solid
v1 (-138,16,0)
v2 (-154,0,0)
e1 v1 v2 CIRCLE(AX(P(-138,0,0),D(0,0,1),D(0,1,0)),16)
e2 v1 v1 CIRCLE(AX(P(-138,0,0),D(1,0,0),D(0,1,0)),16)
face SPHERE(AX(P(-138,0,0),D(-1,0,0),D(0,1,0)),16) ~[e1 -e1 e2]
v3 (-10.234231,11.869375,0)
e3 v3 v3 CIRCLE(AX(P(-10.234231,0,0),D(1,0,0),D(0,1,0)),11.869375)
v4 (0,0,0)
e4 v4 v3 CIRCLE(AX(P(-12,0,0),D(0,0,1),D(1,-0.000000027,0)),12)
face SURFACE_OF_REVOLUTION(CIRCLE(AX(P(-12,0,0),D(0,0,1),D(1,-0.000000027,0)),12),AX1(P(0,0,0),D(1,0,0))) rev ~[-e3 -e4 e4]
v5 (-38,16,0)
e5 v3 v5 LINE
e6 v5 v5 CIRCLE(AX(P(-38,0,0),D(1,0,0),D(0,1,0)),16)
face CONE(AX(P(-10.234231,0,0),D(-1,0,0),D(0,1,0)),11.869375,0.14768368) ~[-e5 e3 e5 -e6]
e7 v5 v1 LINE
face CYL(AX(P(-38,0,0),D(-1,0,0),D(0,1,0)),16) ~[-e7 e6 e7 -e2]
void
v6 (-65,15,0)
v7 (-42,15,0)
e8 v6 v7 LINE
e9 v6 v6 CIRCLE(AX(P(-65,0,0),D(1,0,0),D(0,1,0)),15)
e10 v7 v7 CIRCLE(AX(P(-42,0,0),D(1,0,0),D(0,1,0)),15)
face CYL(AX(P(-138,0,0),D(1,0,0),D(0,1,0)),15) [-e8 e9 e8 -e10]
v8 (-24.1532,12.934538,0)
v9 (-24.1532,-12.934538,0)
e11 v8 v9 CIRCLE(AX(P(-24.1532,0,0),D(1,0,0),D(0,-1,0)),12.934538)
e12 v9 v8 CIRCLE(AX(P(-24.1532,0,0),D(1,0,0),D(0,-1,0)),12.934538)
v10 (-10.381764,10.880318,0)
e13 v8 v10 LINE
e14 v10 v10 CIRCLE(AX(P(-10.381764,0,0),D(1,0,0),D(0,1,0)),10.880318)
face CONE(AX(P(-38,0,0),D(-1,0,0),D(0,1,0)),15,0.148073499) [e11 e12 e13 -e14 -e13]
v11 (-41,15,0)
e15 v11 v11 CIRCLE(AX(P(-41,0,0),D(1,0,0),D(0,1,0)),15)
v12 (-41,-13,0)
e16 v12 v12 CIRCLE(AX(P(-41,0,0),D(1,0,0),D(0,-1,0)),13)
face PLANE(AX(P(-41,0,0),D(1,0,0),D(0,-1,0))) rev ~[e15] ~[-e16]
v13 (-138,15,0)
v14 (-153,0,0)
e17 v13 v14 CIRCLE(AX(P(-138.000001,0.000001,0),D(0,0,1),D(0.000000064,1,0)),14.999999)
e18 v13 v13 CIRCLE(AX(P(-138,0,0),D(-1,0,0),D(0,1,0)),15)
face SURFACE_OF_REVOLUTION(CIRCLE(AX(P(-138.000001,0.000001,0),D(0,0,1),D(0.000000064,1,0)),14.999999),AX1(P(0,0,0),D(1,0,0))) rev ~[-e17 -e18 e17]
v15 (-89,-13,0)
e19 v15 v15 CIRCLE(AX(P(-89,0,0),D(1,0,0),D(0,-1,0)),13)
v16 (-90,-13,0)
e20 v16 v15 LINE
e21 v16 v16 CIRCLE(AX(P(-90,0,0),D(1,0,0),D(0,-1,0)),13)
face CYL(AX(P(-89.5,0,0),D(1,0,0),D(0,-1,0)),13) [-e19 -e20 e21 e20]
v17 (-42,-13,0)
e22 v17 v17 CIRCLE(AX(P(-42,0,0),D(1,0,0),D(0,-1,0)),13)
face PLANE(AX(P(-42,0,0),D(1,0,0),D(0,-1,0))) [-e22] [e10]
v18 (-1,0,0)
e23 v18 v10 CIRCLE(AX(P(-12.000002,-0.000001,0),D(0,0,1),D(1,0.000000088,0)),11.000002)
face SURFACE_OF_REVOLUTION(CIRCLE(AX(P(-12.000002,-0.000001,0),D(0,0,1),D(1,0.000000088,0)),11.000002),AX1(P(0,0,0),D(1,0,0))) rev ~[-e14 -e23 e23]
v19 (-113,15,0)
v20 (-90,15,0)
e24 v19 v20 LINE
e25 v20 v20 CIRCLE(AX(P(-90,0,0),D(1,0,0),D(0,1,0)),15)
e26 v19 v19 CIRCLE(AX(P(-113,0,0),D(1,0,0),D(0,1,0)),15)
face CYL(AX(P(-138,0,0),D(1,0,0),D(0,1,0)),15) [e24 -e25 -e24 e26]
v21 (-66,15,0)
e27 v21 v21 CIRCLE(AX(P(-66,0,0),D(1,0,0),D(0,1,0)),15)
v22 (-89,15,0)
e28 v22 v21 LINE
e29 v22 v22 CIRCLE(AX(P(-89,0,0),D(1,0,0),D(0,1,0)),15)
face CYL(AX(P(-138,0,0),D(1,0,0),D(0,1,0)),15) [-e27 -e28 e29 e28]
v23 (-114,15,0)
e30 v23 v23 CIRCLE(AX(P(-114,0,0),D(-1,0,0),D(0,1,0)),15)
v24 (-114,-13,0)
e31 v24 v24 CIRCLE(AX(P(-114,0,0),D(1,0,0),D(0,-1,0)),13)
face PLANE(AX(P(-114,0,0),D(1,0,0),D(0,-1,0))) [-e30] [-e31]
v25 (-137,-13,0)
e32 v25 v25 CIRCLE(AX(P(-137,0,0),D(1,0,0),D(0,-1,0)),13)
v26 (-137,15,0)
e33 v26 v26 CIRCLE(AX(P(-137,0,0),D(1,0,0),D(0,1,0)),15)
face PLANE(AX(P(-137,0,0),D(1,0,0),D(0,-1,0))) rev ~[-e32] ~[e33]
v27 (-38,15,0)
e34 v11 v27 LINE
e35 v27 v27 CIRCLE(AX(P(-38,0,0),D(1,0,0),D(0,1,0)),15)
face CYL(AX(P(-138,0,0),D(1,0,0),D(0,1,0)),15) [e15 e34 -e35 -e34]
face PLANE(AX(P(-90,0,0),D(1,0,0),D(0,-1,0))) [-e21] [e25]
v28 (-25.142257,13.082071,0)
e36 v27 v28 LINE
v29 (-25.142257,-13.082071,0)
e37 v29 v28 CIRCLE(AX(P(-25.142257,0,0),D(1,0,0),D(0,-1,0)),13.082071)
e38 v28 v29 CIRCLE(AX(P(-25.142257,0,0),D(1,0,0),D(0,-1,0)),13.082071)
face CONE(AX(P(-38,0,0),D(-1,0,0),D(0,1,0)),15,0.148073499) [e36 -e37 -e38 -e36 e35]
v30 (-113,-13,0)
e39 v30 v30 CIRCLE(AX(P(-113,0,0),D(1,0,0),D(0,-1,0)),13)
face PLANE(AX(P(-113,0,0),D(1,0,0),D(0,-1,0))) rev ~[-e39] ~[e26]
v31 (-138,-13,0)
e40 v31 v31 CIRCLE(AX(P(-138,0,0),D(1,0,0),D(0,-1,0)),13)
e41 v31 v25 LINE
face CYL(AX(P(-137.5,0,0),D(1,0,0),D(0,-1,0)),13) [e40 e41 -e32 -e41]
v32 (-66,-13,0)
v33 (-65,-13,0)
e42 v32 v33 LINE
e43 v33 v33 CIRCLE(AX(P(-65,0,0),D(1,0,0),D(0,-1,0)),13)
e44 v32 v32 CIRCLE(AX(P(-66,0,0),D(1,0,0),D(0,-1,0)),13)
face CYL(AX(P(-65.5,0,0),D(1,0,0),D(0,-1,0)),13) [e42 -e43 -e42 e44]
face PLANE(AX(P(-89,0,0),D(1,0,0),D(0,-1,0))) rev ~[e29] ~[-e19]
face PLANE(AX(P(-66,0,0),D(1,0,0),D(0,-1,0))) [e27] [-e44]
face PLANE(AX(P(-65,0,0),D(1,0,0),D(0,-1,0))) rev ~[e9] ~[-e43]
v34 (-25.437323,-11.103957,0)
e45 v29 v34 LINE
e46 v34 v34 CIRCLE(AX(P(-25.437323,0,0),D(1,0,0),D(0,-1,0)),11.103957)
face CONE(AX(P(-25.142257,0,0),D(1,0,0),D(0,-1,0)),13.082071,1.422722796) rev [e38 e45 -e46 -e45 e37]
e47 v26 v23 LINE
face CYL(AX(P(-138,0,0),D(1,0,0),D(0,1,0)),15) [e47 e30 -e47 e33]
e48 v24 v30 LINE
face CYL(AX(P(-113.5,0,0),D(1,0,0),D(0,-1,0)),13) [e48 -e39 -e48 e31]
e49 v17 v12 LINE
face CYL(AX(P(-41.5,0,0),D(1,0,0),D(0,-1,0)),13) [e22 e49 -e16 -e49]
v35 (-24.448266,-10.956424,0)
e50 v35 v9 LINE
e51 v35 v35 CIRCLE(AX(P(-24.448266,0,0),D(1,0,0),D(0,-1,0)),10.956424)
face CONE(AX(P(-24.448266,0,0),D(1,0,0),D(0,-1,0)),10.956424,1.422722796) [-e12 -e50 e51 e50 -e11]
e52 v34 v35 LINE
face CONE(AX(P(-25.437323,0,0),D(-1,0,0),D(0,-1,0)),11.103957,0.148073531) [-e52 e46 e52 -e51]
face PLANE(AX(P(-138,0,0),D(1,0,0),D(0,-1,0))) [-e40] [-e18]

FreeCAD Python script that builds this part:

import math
import FreeCAD as App
import Part
import Sketcher

V = App.Vector

doc = App.newDocument("Part")
body = doc.addObject("PartDesign::Body", "Body")

# Sketch on XY plane
sketch1 = doc.addObject("Sketcher::SketchObject", "Sketch")
body.addObject(sketch1)
sketch1.AttachmentSupport = (doc.XY_Plane, [""])
sketch1.MapMode = "FlatFace"
sketch1.addGeometry([
    Part.ArcOfCircle(Part.Circle(V(-12, 0, 0), V(0, 0, 1), 12), math.radians(0), math.radians(82)),  # 0
    Part.LineSegment(V(-10.2, 11.9, 0), V(-38, 16, 0)),  # 1
    Part.LineSegment(V(-38, 16, 0), V(-138, 16, 0)),  # 2
    Part.ArcOfCircle(Part.Circle(V(-138, 0, 0), V(0, 0, 1), 16), math.radians(90), math.radians(180)),  # 3
    Part.LineSegment(V(-154, 0, 0), V(-153, 0, 0)),  # 4
    Part.ArcOfCircle(Part.Circle(V(-138, 0, 0), V(0, 0, 1), 15), math.radians(90), math.radians(180)),  # 5
    Part.LineSegment(V(-138, 15, 0), V(-38, 15, 0)),  # 6
    Part.LineSegment(V(-38, 15, 0), V(-10.4, 10.9, 0)),  # 7
    Part.ArcOfCircle(Part.Circle(V(-12, 0, 0), V(0, 0, 1), 11), math.radians(0), math.radians(82)),  # 8
    Part.LineSegment(V(-1, 0, 0), V(0, 0, 0)),  # 9
], False)
sketch1.addConstraint([
    Sketcher.Constraint("Tangent", 0, 2, 1, 1),
    Sketcher.Constraint("Coincident", 1, 2, 2, 1),
    Sketcher.Constraint("Tangent", 2, 2, 3, 1),
    Sketcher.Constraint("Coincident", 3, 2, 4, 1),
    Sketcher.Constraint("Coincident", 4, 2, 5, 2),
    Sketcher.Constraint("Tangent", 5, 1, 6, 1),
    Sketcher.Constraint("Coincident", 6, 2, 7, 1),
    Sketcher.Constraint("Coincident", 7, 2, 8, 2),
    Sketcher.Constraint("Coincident", 8, 1, 9, 1),
    Sketcher.Constraint("Coincident", 9, 2, 0, 1),
    Sketcher.Constraint("Horizontal", 2),
    Sketcher.Constraint("Horizontal", 4),
    Sketcher.Constraint("Horizontal", 6),
    Sketcher.Constraint("Horizontal", 9),
    Sketcher.Constraint("Coincident", 9, 2, -1, 1),
    Sketcher.Constraint("Coincident", 5, 3, 3, 3),
    Sketcher.Constraint("Coincident", 8, 3, 0, 3),
    Sketcher.Constraint("PointOnObject", 0, 3, -1),
    Sketcher.Constraint("PointOnObject", 3, 3, -1),
    Sketcher.Constraint("PointOnObject", 3, 2, -1),
    Sketcher.Constraint("Vertical", 1, 2, 6, 2),
    Sketcher.Constraint("Equal", 4, 9),
    Sketcher.Constraint("Radius", 0, 12.0),
    Sketcher.Constraint("Radius", 3, 16.0),
    Sketcher.Constraint("Radius", 5, 14.999999),
    Sketcher.Constraint("DistanceX", 2, 2, 2, 1, 100.0),
    Sketcher.Constraint("DistanceX", 3, 3, -1, 1, 138.0),
    Sketcher.Constraint("DistanceY", -1, 1, 7, 2, 10.880318),
])
revolution = doc.addObject("PartDesign::Revolution", "Revolution")
body.addObject(revolution)
revolution.Profile = sketch1
revolution.ReferenceAxis = (sketch1, ["H_Axis"])
revolution.Angle = 360

# Sketch on XY plane
sketch2 = doc.addObject("Sketcher::SketchObject", "Sketch001")
body.addObject(sketch2)
sketch2.AttachmentSupport = (doc.XY_Plane, [""])
sketch2.MapMode = "FlatFace"
sketch2.addGeometry([
    Part.LineSegment(V(-138, -13, 0), V(-138, -15, 0)),
    Part.LineSegment(V(-138, -15, 0), V(-137, -15, 0)),
    Part.LineSegment(V(-137, -15, 0), V(-137, -13, 0)),
    Part.LineSegment(V(-137, -13, 0), V(-138, -13, 0)),
], False)
sketch2.addConstraint([
    Sketcher.Constraint("Coincident", 0, 2, 1, 1),
    Sketcher.Constraint("Coincident", 1, 2, 2, 1),
    Sketcher.Constraint("Coincident", 2, 2, 3, 1),
    Sketcher.Constraint("Coincident", 3, 2, 0, 1),
    Sketcher.Constraint("Vertical", 0),
    Sketcher.Constraint("Horizontal", 1),
    Sketcher.Constraint("Vertical", 2),
    Sketcher.Constraint("Horizontal", 3),
    Sketcher.Constraint("DistanceX", 1, 1, 1, 2, 1.0),
    Sketcher.Constraint("DistanceY", 0, 2, 0, 1, 2.0),
    Sketcher.Constraint("DistanceX", 0, 2, -1, 1, 138.0),
    Sketcher.Constraint("DistanceY", 0, 2, -1, 1, 15.0),
])
revolution2 = doc.addObject("PartDesign::Revolution", "Revolution001")
body.addObject(revolution2)
revolution2.Profile = sketch2
revolution2.ReferenceAxis = (sketch2, ["H_Axis"])
revolution2.Angle = 360
doc.recompute()

linearpattern = doc.addObject("PartDesign::LinearPattern", "LinearPattern")
body.addObject(linearpattern)
linearpattern.Originals = [revolution2]
linearpattern.Direction = (doc.X_Axis, [""])
linearpattern.Mode = "offset"
linearpattern.Offset = 24
linearpattern.Occurrences = 5
body.Tip = linearpattern

# Sketch on XY plane
sketch3 = doc.addObject("Sketcher::SketchObject", "Sketch002")
body.addObject(sketch3)
sketch3.AttachmentSupport = (doc.XY_Plane, [""])
sketch3.MapMode = "FlatFace"
sketch3.addGeometry([
    Part.LineSegment(V(-25.1, -13.1, 0), V(-24.2, -12.9, 0)),
    Part.LineSegment(V(-24.2, -12.9, 0), V(-24.4, -11, 0)),
    Part.LineSegment(V(-24.4, -11, 0), V(-25.4, -11.1, 0)),
    Part.LineSegment(V(-25.4, -11.1, 0), V(-25.1, -13.1, 0)),
], False)
sketch3.addConstraint([
    Sketcher.Constraint("Coincident", 0, 2, 1, 1),
    Sketcher.Constraint("Coincident", 1, 2, 2, 1),
    Sketcher.Constraint("Coincident", 2, 2, 3, 1),
    Sketcher.Constraint("Coincident", 3, 2, 0, 1),
    Sketcher.Constraint("Perpendicular", 0, 1),
    Sketcher.Constraint("Perpendicular", 1, 2),
    Sketcher.Constraint("Perpendicular", 2, 3),
    Sketcher.Constraint("Distance", 0, 1.0),
    Sketcher.Constraint("Distance", 1, 2.0),
    Sketcher.Constraint("DistanceX", 0, 2, -1, 1, 24.1532),
    Sketcher.Constraint("DistanceY", 3, 2, -1, 1, 13.082071),
    Sketcher.Constraint("DistanceY", 0, 2, 2, 2, 1.830581),
])
revolution3 = doc.addObject("PartDesign::Revolution", "Revolution002")
body.addObject(revolution3)
revolution3.Profile = sketch3
revolution3.ReferenceAxis = (sketch3, ["H_Axis"])
revolution3.Angle = 360

doc.recompute()
